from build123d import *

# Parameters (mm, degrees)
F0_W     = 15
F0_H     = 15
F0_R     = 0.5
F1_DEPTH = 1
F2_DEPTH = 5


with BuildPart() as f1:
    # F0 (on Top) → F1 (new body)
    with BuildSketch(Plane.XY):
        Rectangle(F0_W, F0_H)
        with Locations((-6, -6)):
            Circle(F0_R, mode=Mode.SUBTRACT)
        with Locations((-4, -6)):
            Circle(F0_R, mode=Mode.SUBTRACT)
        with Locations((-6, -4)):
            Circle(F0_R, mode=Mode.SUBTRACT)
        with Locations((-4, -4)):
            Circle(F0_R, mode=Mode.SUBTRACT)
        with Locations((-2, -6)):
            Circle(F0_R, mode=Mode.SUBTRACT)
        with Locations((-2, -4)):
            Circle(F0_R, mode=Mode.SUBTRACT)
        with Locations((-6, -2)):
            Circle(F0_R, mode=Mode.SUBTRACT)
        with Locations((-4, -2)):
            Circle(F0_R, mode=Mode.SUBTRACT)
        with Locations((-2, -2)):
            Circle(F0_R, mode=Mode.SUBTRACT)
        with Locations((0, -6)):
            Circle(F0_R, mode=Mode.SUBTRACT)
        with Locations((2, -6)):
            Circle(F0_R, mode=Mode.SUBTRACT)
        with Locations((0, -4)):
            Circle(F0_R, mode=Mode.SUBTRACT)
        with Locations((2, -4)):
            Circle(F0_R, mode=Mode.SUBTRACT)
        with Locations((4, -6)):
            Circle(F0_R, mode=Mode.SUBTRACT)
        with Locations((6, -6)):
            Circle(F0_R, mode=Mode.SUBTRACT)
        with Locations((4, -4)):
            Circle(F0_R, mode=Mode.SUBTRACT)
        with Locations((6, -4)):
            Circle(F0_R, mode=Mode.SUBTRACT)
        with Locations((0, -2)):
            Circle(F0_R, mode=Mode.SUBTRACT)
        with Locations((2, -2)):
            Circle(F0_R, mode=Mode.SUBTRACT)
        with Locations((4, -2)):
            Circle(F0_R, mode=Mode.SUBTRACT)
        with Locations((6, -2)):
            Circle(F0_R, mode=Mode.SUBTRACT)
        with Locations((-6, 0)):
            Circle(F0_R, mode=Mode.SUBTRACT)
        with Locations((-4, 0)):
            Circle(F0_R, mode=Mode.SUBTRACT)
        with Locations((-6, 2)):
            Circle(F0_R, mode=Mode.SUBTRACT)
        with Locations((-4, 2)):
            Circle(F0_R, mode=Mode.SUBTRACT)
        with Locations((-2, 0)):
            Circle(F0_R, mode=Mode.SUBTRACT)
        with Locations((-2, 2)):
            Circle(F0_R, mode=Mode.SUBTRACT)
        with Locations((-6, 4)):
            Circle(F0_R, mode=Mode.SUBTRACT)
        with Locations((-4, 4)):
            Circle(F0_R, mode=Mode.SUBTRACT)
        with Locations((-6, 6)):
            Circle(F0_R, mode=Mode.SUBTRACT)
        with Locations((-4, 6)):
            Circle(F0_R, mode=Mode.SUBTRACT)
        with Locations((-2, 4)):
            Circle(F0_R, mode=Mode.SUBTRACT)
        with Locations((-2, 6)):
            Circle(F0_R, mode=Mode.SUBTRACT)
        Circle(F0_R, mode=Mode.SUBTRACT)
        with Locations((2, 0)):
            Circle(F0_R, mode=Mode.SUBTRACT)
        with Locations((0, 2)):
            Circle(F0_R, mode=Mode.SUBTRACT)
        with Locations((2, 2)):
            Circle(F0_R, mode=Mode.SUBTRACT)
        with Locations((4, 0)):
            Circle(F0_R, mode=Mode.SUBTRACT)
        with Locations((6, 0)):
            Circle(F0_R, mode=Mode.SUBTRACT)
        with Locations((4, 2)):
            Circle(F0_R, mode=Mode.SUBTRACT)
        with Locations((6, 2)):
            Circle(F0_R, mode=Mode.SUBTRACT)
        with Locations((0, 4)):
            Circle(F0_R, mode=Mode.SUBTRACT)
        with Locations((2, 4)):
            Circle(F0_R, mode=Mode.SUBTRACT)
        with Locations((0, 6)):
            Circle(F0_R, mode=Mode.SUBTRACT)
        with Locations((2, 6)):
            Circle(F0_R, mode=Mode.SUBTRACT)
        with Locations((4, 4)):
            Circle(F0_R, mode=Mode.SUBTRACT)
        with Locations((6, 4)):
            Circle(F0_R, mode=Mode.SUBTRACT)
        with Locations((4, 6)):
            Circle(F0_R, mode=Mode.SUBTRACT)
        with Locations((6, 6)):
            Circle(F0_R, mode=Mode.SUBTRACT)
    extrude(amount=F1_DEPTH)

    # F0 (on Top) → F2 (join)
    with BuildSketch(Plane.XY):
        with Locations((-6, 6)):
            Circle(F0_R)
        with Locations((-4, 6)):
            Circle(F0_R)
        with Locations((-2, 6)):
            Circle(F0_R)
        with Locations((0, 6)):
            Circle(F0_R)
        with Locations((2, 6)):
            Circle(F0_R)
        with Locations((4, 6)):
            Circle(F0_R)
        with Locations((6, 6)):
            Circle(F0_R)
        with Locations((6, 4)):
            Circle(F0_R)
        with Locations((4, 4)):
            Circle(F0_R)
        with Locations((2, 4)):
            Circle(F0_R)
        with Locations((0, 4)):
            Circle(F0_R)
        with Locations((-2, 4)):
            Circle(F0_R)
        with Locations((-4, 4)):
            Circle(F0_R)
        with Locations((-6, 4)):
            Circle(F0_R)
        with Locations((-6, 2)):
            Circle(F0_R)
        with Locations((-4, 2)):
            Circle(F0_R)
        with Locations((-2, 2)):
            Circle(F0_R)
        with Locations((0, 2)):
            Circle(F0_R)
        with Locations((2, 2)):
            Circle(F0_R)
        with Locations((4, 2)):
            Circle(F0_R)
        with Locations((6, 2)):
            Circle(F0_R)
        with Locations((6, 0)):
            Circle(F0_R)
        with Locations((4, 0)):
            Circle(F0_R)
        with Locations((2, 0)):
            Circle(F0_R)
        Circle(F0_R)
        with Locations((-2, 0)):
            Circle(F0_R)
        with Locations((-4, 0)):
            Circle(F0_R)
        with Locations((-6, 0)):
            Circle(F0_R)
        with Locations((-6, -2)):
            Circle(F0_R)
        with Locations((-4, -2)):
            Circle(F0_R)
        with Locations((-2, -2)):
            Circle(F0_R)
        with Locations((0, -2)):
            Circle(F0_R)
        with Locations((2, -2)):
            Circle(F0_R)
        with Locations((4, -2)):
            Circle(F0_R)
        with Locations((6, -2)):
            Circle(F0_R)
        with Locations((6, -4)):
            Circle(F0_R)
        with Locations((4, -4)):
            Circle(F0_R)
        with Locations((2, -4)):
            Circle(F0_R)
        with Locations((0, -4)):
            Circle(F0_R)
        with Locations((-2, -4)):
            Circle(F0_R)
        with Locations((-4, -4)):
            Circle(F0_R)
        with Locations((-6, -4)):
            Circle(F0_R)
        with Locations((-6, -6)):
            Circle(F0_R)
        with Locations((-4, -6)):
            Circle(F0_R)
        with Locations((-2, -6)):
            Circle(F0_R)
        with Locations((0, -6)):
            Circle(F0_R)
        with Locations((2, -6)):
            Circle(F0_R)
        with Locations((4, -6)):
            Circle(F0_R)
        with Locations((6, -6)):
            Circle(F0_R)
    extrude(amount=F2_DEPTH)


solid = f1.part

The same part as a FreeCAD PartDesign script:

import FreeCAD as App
import Part
import Sketcher

V = App.Vector

doc = App.newDocument("Part")
params = doc.addObject("Spreadsheet::Sheet", "Params")
for row, (alias, value) in enumerate([
    ("sketch1_diameter", "1 mm"),
    ("sketch1_width", "15 mm"),
    ("pad1_length", "1 mm"),
    ("sketch2_diameter", "1 mm"),
    ("pad2_length", "5 mm"),
], start=1):
    params.set(f"A{row}", alias)
    params.set(f"B{row}", "=" + value)
    params.setAlias(f"B{row}", alias)

body = doc.addObject("PartDesign::Body", "Body")

sketch1 = body.newObject("Sketcher::SketchObject", "Sketch")
sketch1.AttachmentSupport = (doc.getObject("XY_Plane"), [""])
sketch1.MapMode = "FlatFace"
sketch1.addGeometry([
    Part.LineSegment(V(-7.5, 7.5, 0), V(-7.5, -7.5, 0)),
    Part.LineSegment(V(-7.5, -7.5, 0), V(7.5, -7.5, 0)),
    Part.LineSegment(V(7.5, -7.5, 0), V(7.5, 7.5, 0)),
    Part.LineSegment(V(7.5, 7.5, 0), V(-7.5, 7.5, 0)),
    Part.Circle(V(-6, -6, 0), V(0, 0, 1), 0.5),
    Part.Circle(V(-4, -6, 0), V(0, 0, 1), 0.5),
    Part.Circle(V(-6, -4, 0), V(0, 0, 1), 0.5),
    Part.Circle(V(-4, -4, 0), V(0, 0, 1), 0.5),
    Part.Circle(V(-2, -6, 0), V(0, 0, 1), 0.5),
    Part.Circle(V(-2, -4, 0), V(0, 0, 1), 0.5),
    Part.Circle(V(-6, -2, 0), V(0, 0, 1), 0.5),
    Part.Circle(V(-4, -2, 0), V(0, 0, 1), 0.5),
    Part.Circle(V(-2, -2, 0), V(0, 0, 1), 0.5),
    Part.Circle(V(0, -6, 0), V(0, 0, 1), 0.5),
    Part.Circle(V(2, -6, 0), V(0, 0, 1), 0.5),
    Part.Circle(V(0, -4, 0), V(0, 0, 1), 0.5),
    Part.Circle(V(2, -4, 0), V(0, 0, 1), 0.5),
    Part.Circle(V(4, -6, 0), V(0, 0, 1), 0.5),
    Part.Circle(V(6, -6, 0), V(0, 0, 1), 0.5),
    Part.Circle(V(4, -4, 0), V(0, 0, 1), 0.5),
    Part.Circle(V(6, -4, 0), V(0, 0, 1), 0.5),
    Part.Circle(V(0, -2, 0), V(0, 0, 1), 0.5),
    Part.Circle(V(2, -2, 0), V(0, 0, 1), 0.5),
    Part.Circle(V(4, -2, 0), V(0, 0, 1), 0.5),
    Part.Circle(V(6, -2, 0), V(0, 0, 1), 0.5),
    Part.Circle(V(-6, 0, 0), V(0, 0, 1), 0.5),
    Part.Circle(V(-4, 0, 0), V(0, 0, 1), 0.5),
    Part.Circle(V(-6, 2, 0), V(0, 0, 1), 0.5),
    Part.Circle(V(-4, 2, 0), V(0, 0, 1), 0.5),
    Part.Circle(V(-2, 0, 0), V(0, 0, 1), 0.5),
    Part.Circle(V(-2, 2, 0), V(0, 0, 1), 0.5),
    Part.Circle(V(-6, 4, 0), V(0, 0, 1), 0.5),
    Part.Circle(V(-4, 4, 0), V(0, 0, 1), 0.5),
    Part.Circle(V(-6, 6, 0), V(0, 0, 1), 0.5),
    Part.Circle(V(-4, 6, 0), V(0, 0, 1), 0.5),
    Part.Circle(V(-2, 4, 0), V(0, 0, 1), 0.5),
    Part.Circle(V(-2, 6, 0), V(0, 0, 1), 0.5),
    Part.Circle(V(0, 0, 0), V(0, 0, 1), 0.5),
    Part.Circle(V(2, 0, 0), V(0, 0, 1), 0.5),
    Part.Circle(V(0, 2, 0), V(0, 0, 1), 0.5),
    Part.Circle(V(2, 2, 0), V(0, 0, 1), 0.5),
    Part.Circle(V(4, 0, 0), V(0, 0, 1), 0.5),
    Part.Circle(V(6, 0, 0), V(0, 0, 1), 0.5),
    Part.Circle(V(4, 2, 0), V(0, 0, 1), 0.5),
    Part.Circle(V(6, 2, 0), V(0, 0, 1), 0.5),
    Part.Circle(V(0, 4, 0), V(0, 0, 1), 0.5),
    Part.Circle(V(2, 4, 0), V(0, 0, 1), 0.5),
    Part.Circle(V(0, 6, 0), V(0, 0, 1), 0.5),
    Part.Circle(V(2, 6, 0), V(0, 0, 1), 0.5),
    Part.Circle(V(4, 4, 0), V(0, 0, 1), 0.5),
    Part.Circle(V(6, 4, 0), V(0, 0, 1), 0.5),
    Part.Circle(V(4, 6, 0), V(0, 0, 1), 0.5),
    Part.Circle(V(6, 6, 0), V(0, 0, 1), 0.5),
], False)
sketch1.addConstraint([
    Sketcher.Constraint("Coincident", 0, 2, 1, 1),
    Sketcher.Constraint("Coincident", 1, 2, 2, 1),
    Sketcher.Constraint("Coincident", 2, 2, 3, 1),
    Sketcher.Constraint("Coincident", 3, 2, 0, 1),
    Sketcher.Constraint("Vertical", 0),
    Sketcher.Constraint("Horizontal", 1),
    Sketcher.Constraint("Vertical", 2),
    Sketcher.Constraint("Horizontal", 3),
    Sketcher.Constraint("Coincident", 37, 3, -1, 1),
    Sketcher.Constraint("Equal", 4, 5),
    Sketcher.Constraint("Equal", 5, 6),
    Sketcher.Constraint("Equal", 6, 7),
    Sketcher.Constraint("Equal", 7, 8),
    Sketcher.Constraint("Equal", 8, 9),
    Sketcher.Constraint("Equal", 9, 10),
    Sketcher.Constraint("Equal", 10, 11),
    Sketcher.Constraint("Equal", 11, 12),
    Sketcher.Constraint("Equal", 12, 13),
    Sketcher.Constraint("Equal", 13, 14),
    Sketcher.Constraint("Equal", 14, 15),
    Sketcher.Constraint("Equal", 15, 16),
    Sketcher.Constraint("Equal", 16, 17),
    Sketcher.Constraint("Equal", 17, 18),
    Sketcher.Constraint("Equal", 18, 19),
    Sketcher.Constraint("Equal", 19, 20),
    Sketcher.Constraint("Equal", 20, 21),
    Sketcher.Constraint("Equal", 21, 22),
    Sketcher.Constraint("Equal", 22, 23),
    Sketcher.Constraint("Equal", 23, 24),
    Sketcher.Constraint("Equal", 24, 25),
    Sketcher.Constraint("Equal", 25, 26),
    Sketcher.Constraint("Equal", 26, 27),
    Sketcher.Constraint("Equal", 27, 28),
    Sketcher.Constraint("Equal", 28, 29),
    Sketcher.Constraint("Equal", 29, 30),
    Sketcher.Constraint("Equal", 30, 31),
    Sketcher.Constraint("Equal", 31, 32),
    Sketcher.Constraint("Equal", 32, 33),
    Sketcher.Constraint("Equal", 33, 34),
    Sketcher.Constraint("Equal", 34, 35),
    Sketcher.Constraint("Equal", 35, 36),
    Sketcher.Constraint("Equal", 36, 37),
    Sketcher.Constraint("Equal", 37, 38),
    Sketcher.Constraint("Equal", 38, 39),
    Sketcher.Constraint("Equal", 39, 40),
    Sketcher.Constraint("Equal", 40, 41),
    Sketcher.Constraint("Equal", 41, 42),
    Sketcher.Constraint("Equal", 42, 43),
    Sketcher.Constraint("Equal", 43, 44),
    Sketcher.Constraint("Equal", 44, 45),
    Sketcher.Constraint("Equal", 45, 46),
    Sketcher.Constraint("Equal", 46, 47),
    Sketcher.Constraint("Equal", 47, 48),
    Sketcher.Constraint("Equal", 48, 49),
    Sketcher.Constraint("Equal", 49, 50),
    Sketcher.Constraint("Equal", 50, 51),
    Sketcher.Constraint("Equal", 51, 52),
    Sketcher.Constraint("Symmetric", 24, 3, 27, 3, -1, 1),
    Sketcher.Constraint("Symmetric", 23, 3, 28, 3, -1, 1),
    Sketcher.Constraint("Symmetric", 22, 3, 30, 3, -1, 1),
    Sketcher.Constraint("Symmetric", 20, 3, 31, 3, -1, 1),
    Sketcher.Constraint("Symmetric", 19, 3, 32, 3, -1, 1),
    Sketcher.Constraint("Symmetric", 18, 3, 33, 3, -1, 1),
    Sketcher.Constraint("Symmetric", 17, 3, 34, 3, -1, 1),
    Sketcher.Constraint("Symmetric", 16, 3, 35, 3, -1, 1),
    Sketcher.Constraint("Symmetric", 14, 3, 36, 3, -1, 1),
    Sketcher.Constraint("Symmetric", 29, 3, 38, 3, -1, 1),
    Sketcher.Constraint("Symmetric", 21, 3, 39, 3, -1, 1),
    Sketcher.Constraint("Symmetric", 12, 3, 40, 3, -1, 1),
    Sketcher.Constraint("Symmetric", 26, 3, 41, 3, -1, 1),
    Sketcher.Constraint("Symmetric", 25, 3, 42, 3, -1, 1),
    Sketcher.Constraint("Symmetric", 11, 3, 43, 3, -1, 1),
    Sketcher.Constraint("Symmetric", 10, 3, 44, 3, -1, 1),
    Sketcher.Constraint("Symmetric", 15, 3, 45, 3, -1, 1),
    Sketcher.Constraint("Symmetric", 9, 3, 46, 3, -1, 1),
    Sketcher.Constraint("Symmetric", 13, 3, 47, 3, -1, 1),
    Sketcher.Constraint("Symmetric", 8, 3, 48, 3, -1, 1),
    Sketcher.Constraint("Symmetric", 7, 3, 49, 3, -1, 1),
    Sketcher.Constraint("Symmetric", 6, 3, 50, 3, -1, 1),
    Sketcher.Constraint("Symmetric", 5, 3, 51, 3, -1, 1),
    Sketcher.Constraint("Symmetric", 4, 3, 52, 3, -1, 1),
    Sketcher.Constraint("Symmetric", 0, 2, 2, 2, -1, 1),
    Sketcher.Constraint("Symmetric", 8, 3, 14, 3, -2),
    Sketcher.Constraint("Symmetric", 9, 3, 16, 3, -2),
    Sketcher.Constraint("Symmetric", 5, 3, 17, 3, -2),
    Sketcher.Constraint("Symmetric", 4, 3, 18, 3, -2),
    Sketcher.Constraint("Symmetric", 7, 3, 19, 3, -2),
    Sketcher.Constraint("Symmetric", 6, 3, 20, 3, -2),
    Sketcher.Constraint("Symmetric", 12, 3, 22, 3, -2),
    Sketcher.Constraint("Symmetric", 11, 3, 23, 3, -2),
    Sketcher.Constraint("Symmetric", 10, 3, 24, 3, -2),
    Sketcher.Constraint("PointOnObject", 13, 3, -2),
    Sketcher.Constraint("PointOnObject", 15, 3, -2),
    Sketcher.Constraint("PointOnObject", 21, 3, -2),
    Sketcher.Constraint("PointOnObject", 25, 3, -1),
    Sketcher.Constraint("PointOnObject", 26, 3, -1),
    Sketcher.Constraint("PointOnObject", 29, 3, -1),
    Sketcher.Constraint("Horizontal", 4, 3, 5, 3),
    Sketcher.Constraint("Horizontal", 6, 3, 7, 3),
    Sketcher.Constraint("Horizontal", 5, 3, 8, 3),
    Sketcher.Constraint("Horizontal", 7, 3, 9, 3),
    Sketcher.Constraint("Horizontal", 10, 3, 11, 3),
    Sketcher.Constraint("Horizontal", 11, 3, 12, 3),
    Sketcher.Constraint("Horizontal", 8, 3, 13, 3),
    Sketcher.Constraint("Horizontal", 9, 3, 15, 3),
    Sketcher.Constraint("Horizontal", 12, 3, 21, 3),
    Sketcher.Constraint("Vertical", 4, 3, 6, 3),
    Sketcher.Constraint("Vertical", 5, 3, 7, 3),
    Sketcher.Constraint("Vertical", 8, 3, 9, 3),
    Sketcher.Constraint("Vertical", 6, 3, 10, 3),
    Sketcher.Constraint("Vertical", 7, 3, 11, 3),
    Sketcher.Constraint("Vertical", 9, 3, 12, 3),
    Sketcher.Constraint("Vertical", 10, 3, 25, 3),
    Sketcher.Constraint("Vertical", 11, 3, 26, 3),
    Sketcher.Constraint("Vertical", 12, 3, 29, 3),
    Sketcher.Constraint("Equal", 3, 0),
    Sketcher.Constraint("Diameter", 4, 1.0),
    Sketcher.Constraint("DistanceX", 1, 1, 1, 2, 15.0),
    Sketcher.Constraint("DistanceX", 4, 3, -1, 1, 6.0),
    Sketcher.Constraint("DistanceY", 4, 3, -1, 1, 6.0),
    Sketcher.Constraint("DistanceX", 5, 3, -1, 1, 4.0),
    Sketcher.Constraint("DistanceY", 6, 3, -1, 1, 4.0),
    Sketcher.Constraint("DistanceX", 8, 3, -1, 1, 2.0),
    Sketcher.Constraint("DistanceY", 10, 3, -1, 1, 2.0),
])
sketch1.setExpression("Constraints[116]", "Params.sketch1_diameter")
sketch1.setExpression("Constraints[117]", "Params.sketch1_width")
pad1 = body.newObject("PartDesign::Pad", "Pad")
pad1.Profile = sketch1
pad1.setExpression("Length", "Params.pad1_length")

sketch2 = body.newObject("Sketcher::SketchObject", "Sketch001")
sketch2.AttachmentSupport = (doc.getObject("XY_Plane"), [""])
sketch2.MapMode = "FlatFace"
sketch2.addGeometry([
    Part.Circle(V(-6, 6, 0), V(0, 0, 1), 0.5),
    Part.Circle(V(-4, 6, 0), V(0, 0, 1), 0.5),
    Part.Circle(V(-2, 6, 0), V(0, 0, 1), 0.5),
    Part.Circle(V(0, 6, 0), V(0, 0, 1), 0.5),
    Part.Circle(V(2, 6, 0), V(0, 0, 1), 0.5),
    Part.Circle(V(4, 6, 0), V(0, 0, 1), 0.5),
    Part.Circle(V(6, 6, 0), V(0, 0, 1), 0.5),
    Part.Circle(V(6, 4, 0), V(0, 0, 1), 0.5),
    Part.Circle(V(4, 4, 0), V(0, 0, 1), 0.5),
    Part.Circle(V(2, 4, 0), V(0, 0, 1), 0.5),
    Part.Circle(V(0, 4, 0), V(0, 0, 1), 0.5),
    Part.Circle(V(-2, 4, 0), V(0, 0, 1), 0.5),
    Part.Circle(V(-4, 4, 0), V(0, 0, 1), 0.5),
    Part.Circle(V(-6, 4, 0), V(0, 0, 1), 0.5),
    Part.Circle(V(-6, 2, 0), V(0, 0, 1), 0.5),
    Part.Circle(V(-4, 2, 0), V(0, 0, 1), 0.5),
    Part.Circle(V(-2, 2, 0), V(0, 0, 1), 0.5),
    Part.Circle(V(0, 2, 0), V(0, 0, 1), 0.5),
    Part.Circle(V(2, 2, 0), V(0, 0, 1), 0.5),
    Part.Circle(V(4, 2, 0), V(0, 0, 1), 0.5),
    Part.Circle(V(6, 2, 0), V(0, 0, 1), 0.5),
    Part.Circle(V(6, 0, 0), V(0, 0, 1), 0.5),
    Part.Circle(V(4, 0, 0), V(0, 0, 1), 0.5),
    Part.Circle(V(2, 0, 0), V(0, 0, 1), 0.5),
    Part.Circle(V(0, 0, 0), V(0, 0, 1), 0.5),
    Part.Circle(V(-2, 0, 0), V(0, 0, 1), 0.5),
    Part.Circle(V(-4, 0, 0), V(0, 0, 1), 0.5),
    Part.Circle(V(-6, 0, 0), V(0, 0, 1), 0.5),
    Part.Circle(V(-6, -2, 0), V(0, 0, 1), 0.5),
    Part.Circle(V(-4, -2, 0), V(0, 0, 1), 0.5),
    Part.Circle(V(-2, -2, 0), V(0, 0, 1), 0.5),
    Part.Circle(V(0, -2, 0), V(0, 0, 1), 0.5),
    Part.Circle(V(2, -2, 0), V(0, 0, 1), 0.5),
    Part.Circle(V(4, -2, 0), V(0, 0, 1), 0.5),
    Part.Circle(V(6, -2, 0), V(0, 0, 1), 0.5),
    Part.Circle(V(6, -4, 0), V(0, 0, 1), 0.5),
    Part.Circle(V(4, -4, 0), V(0, 0, 1), 0.5),
    Part.Circle(V(2, -4, 0), V(0, 0, 1), 0.5),
    Part.Circle(V(0, -4, 0), V(0, 0, 1), 0.5),
    Part.Circle(V(-2, -4, 0), V(0, 0, 1), 0.5),
    Part.Circle(V(-4, -4, 0), V(0, 0, 1), 0.5),
    Part.Circle(V(-6, -4, 0), V(0, 0, 1), 0.5),
    Part.Circle(V(-6, -6, 0), V(0, 0, 1), 0.5),
    Part.Circle(V(-4, -6, 0), V(0, 0, 1), 0.5),
    Part.Circle(V(-2, -6, 0), V(0, 0, 1), 0.5),
    Part.Circle(V(0, -6, 0), V(0, 0, 1), 0.5),
    Part.Circle(V(2, -6, 0), V(0, 0, 1), 0.5),
    Part.Circle(V(4, -6, 0), V(0, 0, 1), 0.5),
    Part.Circle(V(6, -6, 0), V(0, 0, 1), 0.5),
], False)
sketch2.addConstraint([
    Sketcher.Constraint("Coincident", 24, 3, -1, 1),
    Sketcher.Constraint("Equal", 0, 1),
    Sketcher.Constraint("Equal", 1, 2),
    Sketcher.Constraint("Equal", 2, 3),
    Sketcher.Constraint("Equal", 3, 4),
    Sketcher.Constraint("Equal", 4, 5),
    Sketcher.Constraint("Equal", 5, 6),
    Sketcher.Constraint("Equal", 6, 7),
    Sketcher.Constraint("Equal", 7, 8),
    Sketcher.Constraint("Equal", 8, 9),
    Sketcher.Constraint("Equal", 9, 10),
    Sketcher.Constraint("Equal", 10, 11),
    Sketcher.Constraint("Equal", 11, 12),
    Sketcher.Constraint("Equal", 12, 13),
    Sketcher.Constraint("Equal", 13, 14),
    Sketcher.Constraint("Equal", 14, 15),
    Sketcher.Constraint("Equal", 15, 16),
    Sketcher.Constraint("Equal", 16, 17),
    Sketcher.Constraint("Equal", 17, 18),
    Sketcher.Constraint("Equal", 18, 19),
    Sketcher.Constraint("Equal", 19, 20),
    Sketcher.Constraint("Equal", 20, 21),
    Sketcher.Constraint("Equal", 21, 22),
    Sketcher.Constraint("Equal", 22, 23),
    Sketcher.Constraint("Equal", 23, 24),
    Sketcher.Constraint("Equal", 24, 25),
    Sketcher.Constraint("Equal", 25, 26),
    Sketcher.Constraint("Equal", 26, 27),
    Sketcher.Constraint("Equal", 27, 28),
    Sketcher.Constraint("Equal", 28, 29),
    Sketcher.Constraint("Equal", 29, 30),
    Sketcher.Constraint("Equal", 30, 31),
    Sketcher.Constraint("Equal", 31, 32),
    Sketcher.Constraint("Equal", 32, 33),
    Sketcher.Constraint("Equal", 33, 34),
    Sketcher.Constraint("Equal", 34, 35),
    Sketcher.Constraint("Equal", 35, 36),
    Sketcher.Constraint("Equal", 36, 37),
    Sketcher.Constraint("Equal", 37, 38),
    Sketcher.Constraint("Equal", 38, 39),
    Sketcher.Constraint("Equal", 39, 40),
    Sketcher.Constraint("Equal", 40, 41),
    Sketcher.Constraint("Equal", 41, 42),
    Sketcher.Constraint("Equal", 42, 43),
    Sketcher.Constraint("Equal", 43, 44),
    Sketcher.Constraint("Equal", 44, 45),
    Sketcher.Constraint("Equal", 45, 46),
    Sketcher.Constraint("Equal", 46, 47),
    Sketcher.Constraint("Equal", 47, 48),
    Sketcher.Constraint("Symmetric", 23, 3, 25, 3, -1, 1),
    Sketcher.Constraint("Symmetric", 22, 3, 26, 3, -1, 1),
    Sketcher.Constraint("Symmetric", 21, 3, 27, 3, -1, 1),
    Sketcher.Constraint("Symmetric", 20, 3, 28, 3, -1, 1),
    Sketcher.Constraint("Symmetric", 19, 3, 29, 3, -1, 1),
    Sketcher.Constraint("Symmetric", 18, 3, 30, 3, -1, 1),
    Sketcher.Constraint("Symmetric", 17, 3, 31, 3, -1, 1),
    Sketcher.Constraint("Symmetric", 16, 3, 32, 3, -1, 1),
    Sketcher.Constraint("Symmetric", 15, 3, 33, 3, -1, 1),
    Sketcher.Constraint("Symmetric", 14, 3, 34, 3, -1, 1),
    Sketcher.Constraint("Symmetric", 13, 3, 35, 3, -1, 1),
    Sketcher.Constraint("Symmetric", 12, 3, 36, 3, -1, 1),
    Sketcher.Constraint("Symmetric", 11, 3, 37, 3, -1, 1),
    Sketcher.Constraint("Symmetric", 10, 3, 38, 3, -1, 1),
    Sketcher.Constraint("Symmetric", 9, 3, 39, 3, -1, 1),
    Sketcher.Constraint("Symmetric", 8, 3, 40, 3, -1, 1),
    Sketcher.Constraint("Symmetric", 7, 3, 41, 3, -1, 1),
    Sketcher.Constraint("Symmetric", 6, 3, 42, 3, -1, 1),
    Sketcher.Constraint("Symmetric", 5, 3, 43, 3, -1, 1),
    Sketcher.Constraint("Symmetric", 4, 3, 44, 3, -1, 1),
    Sketcher.Constraint("Symmetric", 3, 3, 45, 3, -1, 1),
    Sketcher.Constraint("Symmetric", 2, 3, 46, 3, -1, 1),
    Sketcher.Constraint("Symmetric", 1, 3, 47, 3, -1, 1),
    Sketcher.Constraint("Symmetric", 0, 3, 48, 3, -1, 1),
    Sketcher.Constraint("Symmetric", 2, 3, 4, 3, -2),
    Sketcher.Constraint("Symmetric", 1, 3, 5, 3, -2),
    Sketcher.Constraint("Symmetric", 0, 3, 6, 3, -2),
    Sketcher.Constraint("Symmetric", 9, 3, 11, 3, -2),
    Sketcher.Constraint("Symmetric", 8, 3, 12, 3, -2),
    Sketcher.Constraint("Symmetric", 7, 3, 13, 3, -2),
    Sketcher.Constraint("Symmetric", 16, 3, 18, 3, -2),
    Sketcher.Constraint("Symmetric", 15, 3, 19, 3, -2),
    Sketcher.Constraint("Symmetric", 14, 3, 20, 3, -2),
    Sketcher.Constraint("PointOnObject", 3, 3, -2),
    Sketcher.Constraint("PointOnObject", 10, 3, -2),
    Sketcher.Constraint("PointOnObject", 17, 3, -2),
    Sketcher.Constraint("PointOnObject", 21, 3, -1),
    Sketcher.Constraint("PointOnObject", 22, 3, -1),
    Sketcher.Constraint("PointOnObject", 23, 3, -1),
    Sketcher.Constraint("Horizontal", 0, 3, 1, 3),
    Sketcher.Constraint("Horizontal", 1, 3, 2, 3),
    Sketcher.Constraint("Horizontal", 2, 3, 3, 3),
    Sketcher.Constraint("Horizontal", 7, 3, 8, 3),
    Sketcher.Constraint("Horizontal", 8, 3, 9, 3),
    Sketcher.Constraint("Horizontal", 9, 3, 10, 3),
    Sketcher.Constraint("Horizontal", 14, 3, 15, 3),
    Sketcher.Constraint("Horizontal", 15, 3, 16, 3),
    Sketcher.Constraint("Horizontal", 16, 3, 17, 3),
    Sketcher.Constraint("Vertical", 6, 3, 7, 3),
    Sketcher.Constraint("Vertical", 5, 3, 8, 3),
    Sketcher.Constraint("Vertical", 4, 3, 9, 3),
    Sketcher.Constraint("Vertical", 13, 3, 14, 3),
    Sketcher.Constraint("Vertical", 12, 3, 15, 3),
    Sketcher.Constraint("Vertical", 11, 3, 16, 3),
    Sketcher.Constraint("Vertical", 20, 3, 21, 3),
    Sketcher.Constraint("Vertical", 19, 3, 22, 3),
    Sketcher.Constraint("Vertical", 18, 3, 23, 3),
    Sketcher.Constraint("Diameter", 0, 1.0),
    Sketcher.Constraint("DistanceX", 0, 3, -1, 1, 6.0),
    Sketcher.Constraint("DistanceY", -1, 1, 0, 3, 6.0),
    Sketcher.Constraint("DistanceX", 1, 3, -1, 1, 4.0),
    Sketcher.Constraint("DistanceX", 2, 3, -1, 1, 2.0),
    Sketcher.Constraint("DistanceY", -1, 1, 7, 3, 4.0),
    Sketcher.Constraint("DistanceY", -1, 1, 14, 3, 2.0),
])
sketch2.setExpression("Constraints[106]", "Params.sketch2_diameter")
pad2 = body.newObject("PartDesign::Pad", "Pad001")
pad2.Profile = sketch2
pad2.setExpression("Length", "Params.pad2_length")

doc.recompute()
